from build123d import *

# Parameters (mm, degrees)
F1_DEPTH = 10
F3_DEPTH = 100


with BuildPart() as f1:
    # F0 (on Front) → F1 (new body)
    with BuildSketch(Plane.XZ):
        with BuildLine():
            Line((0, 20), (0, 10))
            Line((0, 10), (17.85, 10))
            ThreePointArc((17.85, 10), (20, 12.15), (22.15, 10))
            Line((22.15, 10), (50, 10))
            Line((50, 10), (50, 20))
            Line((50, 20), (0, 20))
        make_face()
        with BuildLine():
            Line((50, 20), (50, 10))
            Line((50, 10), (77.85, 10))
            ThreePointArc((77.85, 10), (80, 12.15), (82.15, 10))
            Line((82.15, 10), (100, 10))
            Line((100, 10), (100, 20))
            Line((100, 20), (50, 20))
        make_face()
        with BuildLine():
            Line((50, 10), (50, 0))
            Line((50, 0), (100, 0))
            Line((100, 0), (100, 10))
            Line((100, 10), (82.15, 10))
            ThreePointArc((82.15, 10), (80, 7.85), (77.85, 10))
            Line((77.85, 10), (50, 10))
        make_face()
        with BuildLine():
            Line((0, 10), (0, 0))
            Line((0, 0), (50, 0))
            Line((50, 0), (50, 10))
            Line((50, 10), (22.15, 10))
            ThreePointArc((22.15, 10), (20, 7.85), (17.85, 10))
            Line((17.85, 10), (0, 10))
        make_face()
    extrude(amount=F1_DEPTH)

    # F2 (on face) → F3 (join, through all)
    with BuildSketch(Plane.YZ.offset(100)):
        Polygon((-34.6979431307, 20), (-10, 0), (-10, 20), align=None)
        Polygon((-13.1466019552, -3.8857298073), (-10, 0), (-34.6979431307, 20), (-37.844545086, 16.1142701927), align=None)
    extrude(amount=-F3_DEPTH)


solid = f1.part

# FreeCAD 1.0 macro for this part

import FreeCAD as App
import Part
import Sketcher
from FreeCAD import Vector
Q = App.Units.Quantity


def add_polygon(sketch, points):
    """Adds a closed chain of lines whose ends are joined by coincident constraints."""
    first, n = sketch.GeometryCount, len(points)
    for a, b in zip(points, points[1:] + points[:1]):
        sketch.addGeometry(Part.LineSegment(App.Vector(*a, 0), App.Vector(*b, 0)), False)
    for i in range(n):
        sketch.addConstraint(Sketcher.Constraint("Coincident", first + i, 2, first + (i + 1) % n, 1))

doc = App.newDocument("Part")
params = doc.addObject("Spreadsheet::Sheet", "Params")
for row, (alias, value) in enumerate([
    ("sketch1_diameter", "4.3 mm"),
    ("sketch1_width", "100 mm"),
    ("sketch1_height", "20 mm"),
    ("pad1_length", "10 mm"),
    ("sketch2_height", "20 mm"),
    ("sketch2_length", "5 mm"),
    ("pad2_length", "100 mm"),
], start=1):
    params.set(f"A{row}", alias)
    params.set(f"B{row}", "=" + value)
    params.setAlias(f"B{row}", alias)

body = doc.addObject("PartDesign::Body", "Body")

sketch1 = body.newObject("Sketcher::SketchObject", "Sketch")
sketch1.AttachmentSupport = (doc.getObject("XZ_Plane"), [""])
sketch1.MapMode = "FlatFace"
add_polygon(sketch1, [(0, 20), (0, 0), (100, 0), (100, 20)])
sketch1.addGeometry(Part.Circle(Vector(20, 10, 0), Vector(0, 0, 1), 2.1), False)
sketch1.addGeometry(Part.Circle(Vector(80, 10, 0), Vector(0, 0, 1), 2.1), False)
sketch1.addConstraint([
    Sketcher.Constraint("Vertical", 0),
    Sketcher.Constraint("Horizontal", 1),
    Sketcher.Constraint("Vertical", 2),
    Sketcher.Constraint("Horizontal", 3),
    Sketcher.Constraint("Coincident", 0, 2, -1, 1),
    Sketcher.Constraint("Equal", 4, 5),
    Sketcher.Constraint("Horizontal", 4, 3, 5, 3),
    Sketcher.Constraint("Diameter", 4, Q("4.3 mm")),
    Sketcher.Constraint("DistanceX", 1, 1, 1, 2, Q("100 mm")),
    Sketcher.Constraint("DistanceY", 0, 2, 0, 1, Q("20 mm")),
    Sketcher.Constraint("DistanceX", -1, 1, 4, 3, Q("20 mm")),
    Sketcher.Constraint("DistanceY", -1, 1, 4, 3, Q("10 mm")),
    Sketcher.Constraint("DistanceX", -1, 1, 5, 3, Q("80 mm")),
])
sketch1.setExpression("Constraints[11]", "Params.sketch1_diameter")
sketch1.setExpression("Constraints[12]", "Params.sketch1_width")
sketch1.setExpression("Constraints[13]", "Params.sketch1_height")
pad1 = body.newObject("PartDesign::Pad", "Pad")
pad1.Profile = sketch1
pad1.setExpression("Length", "Params.pad1_length")

sketch2 = body.newObject("Sketcher::SketchObject", "Sketch001")
sketch2.AttachmentSupport = (doc.getObject("YZ_Plane"), [""])
sketch2.MapMode = "FlatFace"
sketch2.AttachmentOffset = App.Placement(Vector(0, 0, 100), App.Rotation())
add_polygon(sketch2, [(-10, 0), (-10, 20), (-34.7, 20), (-37.8, 16.1), (-13.1, -3.9)])
sketch2.addConstraint([
    Sketcher.Constraint("Vertical", 0),
    Sketcher.Constraint("Horizontal", 1),
    Sketcher.Constraint("PointOnObject", 4, 2, -1),
    Sketcher.Constraint("Perpendicular", 2, 3),
    Sketcher.Constraint("Perpendicular", 3, 4),
    Sketcher.Constraint("Equal", 2, 4),
    Sketcher.Constraint("DistanceY", 0, 1, 0, 2, Q("20 mm")),
    Sketcher.Constraint("Angle", 2, Q("-129 deg")),
    Sketcher.Constraint("Distance", 2, Q("5 mm")),
    Sketcher.Constraint("DistanceX", 0, 2, -1, 1, Q("10 mm")),
])
sketch2.setExpression("Constraints[11]", "Params.sketch2_height")
sketch2.setExpression("Constraints[13]", "Params.sketch2_length")
pad2 = body.newObject("PartDesign::Pad", "Pad001")
pad2.Profile = sketch2
pad2.setExpression("Length", "Params.pad2_length")
pad2.Reversed = True

doc.recompute()
